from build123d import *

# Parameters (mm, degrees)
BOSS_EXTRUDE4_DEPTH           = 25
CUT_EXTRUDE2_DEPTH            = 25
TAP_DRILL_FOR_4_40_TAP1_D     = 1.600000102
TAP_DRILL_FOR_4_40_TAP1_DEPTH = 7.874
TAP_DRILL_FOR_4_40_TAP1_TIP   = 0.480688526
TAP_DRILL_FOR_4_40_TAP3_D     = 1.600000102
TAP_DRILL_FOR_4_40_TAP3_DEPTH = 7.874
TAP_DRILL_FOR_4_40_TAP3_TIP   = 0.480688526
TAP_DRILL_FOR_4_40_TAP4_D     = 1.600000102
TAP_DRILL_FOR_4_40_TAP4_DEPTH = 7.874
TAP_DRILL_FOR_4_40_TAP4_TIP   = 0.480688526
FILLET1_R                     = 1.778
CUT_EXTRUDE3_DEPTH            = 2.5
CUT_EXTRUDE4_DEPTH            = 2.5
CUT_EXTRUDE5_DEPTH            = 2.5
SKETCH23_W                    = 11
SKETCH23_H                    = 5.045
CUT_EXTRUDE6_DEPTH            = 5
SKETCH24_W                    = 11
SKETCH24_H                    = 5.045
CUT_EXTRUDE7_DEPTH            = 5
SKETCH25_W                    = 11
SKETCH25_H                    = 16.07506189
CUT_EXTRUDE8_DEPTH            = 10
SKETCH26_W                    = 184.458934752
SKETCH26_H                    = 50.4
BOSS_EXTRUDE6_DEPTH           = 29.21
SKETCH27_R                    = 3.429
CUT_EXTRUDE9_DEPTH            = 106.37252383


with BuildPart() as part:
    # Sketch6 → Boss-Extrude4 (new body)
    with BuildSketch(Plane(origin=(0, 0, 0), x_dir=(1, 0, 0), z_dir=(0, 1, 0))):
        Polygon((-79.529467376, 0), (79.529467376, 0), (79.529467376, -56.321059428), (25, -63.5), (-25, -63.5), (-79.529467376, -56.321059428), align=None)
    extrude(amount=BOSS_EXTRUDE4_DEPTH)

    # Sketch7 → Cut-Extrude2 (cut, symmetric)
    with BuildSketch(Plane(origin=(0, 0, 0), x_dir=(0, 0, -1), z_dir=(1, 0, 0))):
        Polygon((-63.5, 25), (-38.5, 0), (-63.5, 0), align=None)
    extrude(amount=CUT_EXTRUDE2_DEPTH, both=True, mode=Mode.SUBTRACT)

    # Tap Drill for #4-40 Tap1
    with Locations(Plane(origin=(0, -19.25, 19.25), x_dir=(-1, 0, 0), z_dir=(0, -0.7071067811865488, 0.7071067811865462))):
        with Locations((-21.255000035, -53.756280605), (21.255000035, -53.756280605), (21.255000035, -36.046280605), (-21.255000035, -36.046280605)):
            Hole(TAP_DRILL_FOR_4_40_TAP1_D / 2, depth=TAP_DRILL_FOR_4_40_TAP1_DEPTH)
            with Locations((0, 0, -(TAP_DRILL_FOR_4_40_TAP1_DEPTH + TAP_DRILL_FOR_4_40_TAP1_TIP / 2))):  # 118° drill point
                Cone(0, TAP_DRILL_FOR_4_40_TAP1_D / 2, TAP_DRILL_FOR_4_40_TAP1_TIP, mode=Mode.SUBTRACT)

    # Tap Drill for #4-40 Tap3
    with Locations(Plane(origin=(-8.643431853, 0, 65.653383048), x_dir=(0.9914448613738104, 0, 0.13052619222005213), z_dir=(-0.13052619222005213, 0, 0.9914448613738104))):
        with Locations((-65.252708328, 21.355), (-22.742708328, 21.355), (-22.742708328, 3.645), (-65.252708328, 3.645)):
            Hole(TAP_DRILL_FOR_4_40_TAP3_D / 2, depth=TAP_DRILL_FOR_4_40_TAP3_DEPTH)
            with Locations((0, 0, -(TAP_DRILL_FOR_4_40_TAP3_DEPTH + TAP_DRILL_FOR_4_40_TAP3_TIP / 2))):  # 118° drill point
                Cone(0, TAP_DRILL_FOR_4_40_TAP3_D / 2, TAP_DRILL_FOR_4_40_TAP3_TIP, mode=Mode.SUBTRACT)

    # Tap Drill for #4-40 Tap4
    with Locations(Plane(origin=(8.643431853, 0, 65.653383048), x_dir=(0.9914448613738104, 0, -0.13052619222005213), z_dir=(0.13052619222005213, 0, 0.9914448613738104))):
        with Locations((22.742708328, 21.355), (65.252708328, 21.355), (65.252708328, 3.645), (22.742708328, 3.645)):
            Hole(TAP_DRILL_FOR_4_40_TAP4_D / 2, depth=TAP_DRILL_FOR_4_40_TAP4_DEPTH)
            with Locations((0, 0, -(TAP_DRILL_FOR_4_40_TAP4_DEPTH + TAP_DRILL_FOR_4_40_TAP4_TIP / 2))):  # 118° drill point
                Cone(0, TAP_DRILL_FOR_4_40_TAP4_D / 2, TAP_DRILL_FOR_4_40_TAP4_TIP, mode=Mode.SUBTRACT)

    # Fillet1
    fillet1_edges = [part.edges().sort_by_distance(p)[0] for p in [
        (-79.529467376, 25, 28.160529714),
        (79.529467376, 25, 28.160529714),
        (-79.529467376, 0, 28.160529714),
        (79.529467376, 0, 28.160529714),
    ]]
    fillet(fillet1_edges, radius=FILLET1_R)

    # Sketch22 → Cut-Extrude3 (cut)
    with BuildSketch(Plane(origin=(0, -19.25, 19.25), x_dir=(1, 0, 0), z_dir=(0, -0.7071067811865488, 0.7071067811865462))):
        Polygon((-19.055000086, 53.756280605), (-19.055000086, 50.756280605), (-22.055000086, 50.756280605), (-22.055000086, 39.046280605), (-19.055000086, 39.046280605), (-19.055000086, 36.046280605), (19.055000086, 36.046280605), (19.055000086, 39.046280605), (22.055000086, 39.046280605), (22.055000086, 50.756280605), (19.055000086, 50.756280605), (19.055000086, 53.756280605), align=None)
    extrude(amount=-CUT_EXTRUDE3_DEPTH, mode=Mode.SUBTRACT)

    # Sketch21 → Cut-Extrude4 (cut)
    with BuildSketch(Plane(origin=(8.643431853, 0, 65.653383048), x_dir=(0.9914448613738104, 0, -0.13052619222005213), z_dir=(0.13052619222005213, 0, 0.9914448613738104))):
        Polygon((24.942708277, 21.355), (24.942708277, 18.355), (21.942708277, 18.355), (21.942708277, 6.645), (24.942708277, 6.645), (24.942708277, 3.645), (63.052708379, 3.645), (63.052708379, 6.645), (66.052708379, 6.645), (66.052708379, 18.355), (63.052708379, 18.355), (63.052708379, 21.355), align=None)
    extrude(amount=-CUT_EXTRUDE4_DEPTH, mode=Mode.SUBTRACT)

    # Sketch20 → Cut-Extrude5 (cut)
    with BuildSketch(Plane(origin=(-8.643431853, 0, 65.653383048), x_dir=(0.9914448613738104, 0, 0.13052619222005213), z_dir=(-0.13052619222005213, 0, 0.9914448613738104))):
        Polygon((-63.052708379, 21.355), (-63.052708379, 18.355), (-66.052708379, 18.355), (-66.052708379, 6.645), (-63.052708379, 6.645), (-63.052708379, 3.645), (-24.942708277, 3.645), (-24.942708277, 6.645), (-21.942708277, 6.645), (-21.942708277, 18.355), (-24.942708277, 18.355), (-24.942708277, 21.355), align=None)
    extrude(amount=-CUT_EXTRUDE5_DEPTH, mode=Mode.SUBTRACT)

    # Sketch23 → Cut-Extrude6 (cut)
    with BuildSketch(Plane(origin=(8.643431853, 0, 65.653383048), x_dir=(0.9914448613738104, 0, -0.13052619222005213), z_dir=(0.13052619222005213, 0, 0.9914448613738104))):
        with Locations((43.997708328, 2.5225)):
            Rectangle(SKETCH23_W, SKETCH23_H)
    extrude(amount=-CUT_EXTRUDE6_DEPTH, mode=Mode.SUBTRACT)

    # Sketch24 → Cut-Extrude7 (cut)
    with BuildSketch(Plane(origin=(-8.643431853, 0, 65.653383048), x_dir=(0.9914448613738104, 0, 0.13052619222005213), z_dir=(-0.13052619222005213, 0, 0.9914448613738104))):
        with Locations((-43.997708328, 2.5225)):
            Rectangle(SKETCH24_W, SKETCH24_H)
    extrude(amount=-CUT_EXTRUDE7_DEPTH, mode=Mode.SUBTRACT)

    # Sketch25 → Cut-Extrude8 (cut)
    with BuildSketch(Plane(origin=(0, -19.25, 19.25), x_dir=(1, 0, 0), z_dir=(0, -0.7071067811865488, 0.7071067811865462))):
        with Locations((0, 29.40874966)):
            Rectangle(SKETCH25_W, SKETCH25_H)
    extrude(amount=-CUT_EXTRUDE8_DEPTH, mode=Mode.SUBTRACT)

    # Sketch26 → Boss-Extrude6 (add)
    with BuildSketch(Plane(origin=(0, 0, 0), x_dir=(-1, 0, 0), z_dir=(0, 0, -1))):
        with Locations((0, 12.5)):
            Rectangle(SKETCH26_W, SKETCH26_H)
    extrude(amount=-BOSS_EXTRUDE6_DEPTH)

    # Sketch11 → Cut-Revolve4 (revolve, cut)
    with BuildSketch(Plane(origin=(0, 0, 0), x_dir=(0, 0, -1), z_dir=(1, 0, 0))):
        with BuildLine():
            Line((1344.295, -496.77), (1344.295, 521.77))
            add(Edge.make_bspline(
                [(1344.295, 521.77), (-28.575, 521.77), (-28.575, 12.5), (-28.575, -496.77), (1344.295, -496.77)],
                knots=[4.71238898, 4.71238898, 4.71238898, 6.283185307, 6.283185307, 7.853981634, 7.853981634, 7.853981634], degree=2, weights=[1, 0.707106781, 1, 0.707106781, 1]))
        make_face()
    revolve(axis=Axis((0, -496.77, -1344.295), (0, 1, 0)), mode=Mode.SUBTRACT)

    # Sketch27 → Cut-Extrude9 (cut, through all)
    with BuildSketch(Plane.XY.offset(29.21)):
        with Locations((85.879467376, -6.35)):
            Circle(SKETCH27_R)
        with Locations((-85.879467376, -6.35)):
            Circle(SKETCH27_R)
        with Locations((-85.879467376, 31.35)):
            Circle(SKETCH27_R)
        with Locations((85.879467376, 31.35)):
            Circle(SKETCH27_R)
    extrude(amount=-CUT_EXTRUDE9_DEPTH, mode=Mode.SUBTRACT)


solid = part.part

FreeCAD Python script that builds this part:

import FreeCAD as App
import Part
import Sketcher
from FreeCAD import Vector
Q = App.Units.Quantity


def edges_at(feature, points):
    """Names of the edges that pass closest to the given points."""
    edges = feature.Shape.Edges
    near = lambda p: min(range(len(edges)), key=lambda i: edges[i].distToShape(Part.Vertex(*p))[0])
    return sorted({f"Edge{near(p) + 1}" for p in points})


def add_polygon(sketch, points):
    """Adds a closed chain of lines whose ends are joined by coincident constraints."""
    first, n = sketch.GeometryCount, len(points)
    for a, b in zip(points, points[1:] + points[:1]):
        sketch.addGeometry(Part.LineSegment(App.Vector(*a, 0), App.Vector(*b, 0)), False)
    for i in range(n):
        sketch.addConstraint(Sketcher.Constraint("Coincident", first + i, 2, first + (i + 1) % n, 1))

doc = App.newDocument("Part")
body = doc.addObject("PartDesign::Body", "Body")

# Sketch on XZ plane
sketch1 = body.newObject("Sketcher::SketchObject", "Sketch")
sketch1.AttachmentSupport = (doc.getObject("XZ_Plane"), [""])
sketch1.MapMode = "FlatFace"
add_polygon(sketch1, [(80, 0), (-80, 0), (-80, 56), (-25, 64), (25, 64), (80, 56)])  # lines 0-5
sketch1.addConstraint(Sketcher.Constraint("Horizontal", 0))
sketch1.addConstraint(Sketcher.Constraint("Vertical", 1))
sketch1.addConstraint(Sketcher.Constraint("Horizontal", 3))
sketch1.addConstraint(Sketcher.Constraint("Vertical", 5))
sketch1.addConstraint(Sketcher.Constraint("Symmetric", 0, 2, 5, 2, -1, 1))
sketch1.addConstraint(Sketcher.Constraint("Horizontal", 1, 2, 4, 2))
sketch1.addConstraint(Sketcher.Constraint("Equal", 2, 4))
sketch1.addConstraint(Sketcher.Constraint("DistanceX", 3, 1, 3, 2, Q("50 mm")))
sketch1.addConstraint(Sketcher.Constraint("Distance", 2, Q("55 mm")))
sketch1.addConstraint(Sketcher.Constraint("Angle", 2, Q("7.5 deg")))
sketch1.addConstraint(Sketcher.Constraint("DistanceY", -1, 1, 2, 2, Q("63.5 mm")))
pad1 = body.newObject("PartDesign::Pad", "Pad")
pad1.Profile = sketch1
pad1.Length = 25
pad1.Reversed = True

# Sketch on YZ plane
sketch2 = body.newObject("Sketcher::SketchObject", "Sketch001")
sketch2.AttachmentSupport = (doc.getObject("YZ_Plane"), [""])
sketch2.MapMode = "FlatFace"
add_polygon(sketch2, [(0, 38), (25, 64), (0, 64)])  # lines 0-2
sketch2.addConstraint(Sketcher.Constraint("Horizontal", 1))
sketch2.addConstraint(Sketcher.Constraint("Vertical", 2))
sketch2.addConstraint(Sketcher.Constraint("PointOnObject", 1, 2, -2))
sketch2.addConstraint(Sketcher.Constraint("Equal", 1, 2))
sketch2.addConstraint(Sketcher.Constraint("DistanceX", 1, 2, 1, 1, Q("25 mm")))
sketch2.addConstraint(Sketcher.Constraint("DistanceY", -1, 1, 0, 2, Q("63.5 mm")))
pocket1 = body.newObject("PartDesign::Pocket", "Pocket")
pocket1.Profile = sketch2
pocket1.Length = 50
pocket1.Midplane = True

# Sketch on an angled plane
sketch3 = body.newObject("Sketcher::SketchObject", "Sketch002")
sketch3.Placement = App.Placement(Vector(0, -19.25, 19.25), App.Rotation(Vector(-1, 0, 0), Vector(0, -0.707106781, -0.707106781), Vector(0, -0.707106781, 0.707106781), "ZXY"))
sketch3.addGeometry(Part.Circle(Vector(-21.3, -53.8, 0), Vector(0, 0, 1), 0.8), False)
sketch3.addGeometry(Part.Circle(Vector(21.3, -53.8, 0), Vector(0, 0, 1), 0.8), False)
sketch3.addGeometry(Part.Circle(Vector(21.3, -36, 0), Vector(0, 0, 1), 0.8), False)
sketch3.addGeometry(Part.Circle(Vector(-21.3, -36, 0), Vector(0, 0, 1), 0.8), False)
sketch3.addConstraint(Sketcher.Constraint("Equal", 0, 1))
sketch3.addConstraint(Sketcher.Constraint("Equal", 1, 2))
sketch3.addConstraint(Sketcher.Constraint("Equal", 2, 3))
sketch3.addConstraint(Sketcher.Constraint("Symmetric", 0, 3, 1, 3, -2))
sketch3.addConstraint(Sketcher.Constraint("Symmetric", 2, 3, 3, 3, -2))
sketch3.addConstraint(Sketcher.Constraint("Vertical", 1, 3, 2, 3))
sketch3.addConstraint(Sketcher.Constraint("Diameter", 0, Q("1.6 mm")))
sketch3.addConstraint(Sketcher.Constraint("DistanceX", 0, 3, 1, 3, Q("42.51 mm")))
sketch3.addConstraint(Sketcher.Constraint("DistanceY", 1, 3, 2, 3, Q("17.71 mm")))
sketch3.addConstraint(Sketcher.Constraint("DistanceY", 0, 3, -1, 1, Q("53.756281 mm")))
doc.recompute()
hole = body.newObject("PartDesign::Hole", "Hole")
hole.Profile = sketch3
hole.ThreadType = "None"
hole.Diameter = 1.6
hole.DepthType = "Dimension"
hole.Depth = 7.874
hole.DrillPoint = "Angled"
hole.DrillPointAngle = 118

# Sketch on an angled plane
sketch4 = body.newObject("Sketcher::SketchObject", "Sketch003")
sketch4.Placement = App.Placement(Vector(-8.643432, 0, 65.653383), App.Rotation(Vector(0.991444861, 0, 0.130526192), Vector(0, 0.999999999, 0), Vector(-0.130526192, 0, 0.991444861), "ZXY"))
sketch4.addGeometry(Part.Circle(Vector(-65.3, 21.4, 0), Vector(0, 0, 1), 0.8), False)
sketch4.addGeometry(Part.Circle(Vector(-22.7, 21.4, 0), Vector(0, 0, 1), 0.8), False)
sketch4.addGeometry(Part.Circle(Vector(-22.7, 3.6, 0), Vector(0, 0, 1), 0.8), False)
sketch4.addGeometry(Part.Circle(Vector(-65.3, 3.6, 0), Vector(0, 0, 1), 0.8), False)
sketch4.addConstraint(Sketcher.Constraint("Equal", 0, 1))
sketch4.addConstraint(Sketcher.Constraint("Equal", 1, 2))
sketch4.addConstraint(Sketcher.Constraint("Equal", 2, 3))
sketch4.addConstraint(Sketcher.Constraint("Horizontal", 0, 3, 1, 3))
sketch4.addConstraint(Sketcher.Constraint("Horizontal", 2, 3, 3, 3))
sketch4.addConstraint(Sketcher.Constraint("Vertical", 1, 3, 2, 3))
sketch4.addConstraint(Sketcher.Constraint("Vertical", 0, 3, 3, 3))
sketch4.addConstraint(Sketcher.Constraint("Diameter", 0, Q("1.6 mm")))
sketch4.addConstraint(Sketcher.Constraint("DistanceX", 0, 3, 1, 3, Q("42.51 mm")))
sketch4.addConstraint(Sketcher.Constraint("DistanceY", 2, 3, 1, 3, Q("17.71 mm")))
sketch4.addConstraint(Sketcher.Constraint("DistanceY", -1, 1, 0, 3, Q("21.355 mm")))
sketch4.addConstraint(Sketcher.Constraint("DistanceX", 0, 3, -1, 1, Q("65.252708 mm")))
doc.recompute()
hole2 = body.newObject("PartDesign::Hole", "Hole001")
hole2.Profile = sketch4
hole2.ThreadType = "None"
hole2.Diameter = 1.6
hole2.DepthType = "Dimension"
hole2.Depth = 7.874
hole2.DrillPoint = "Angled"
hole2.DrillPointAngle = 118

# Sketch on an angled plane
sketch5 = body.newObject("Sketcher::SketchObject", "Sketch004")
sketch5.Placement = App.Placement(Vector(8.643432, 0, 65.653383), App.Rotation(Vector(0.991444861, 0, -0.130526192), Vector(0, 0.999999999, 0), Vector(0.130526192, 0, 0.991444861), "ZXY"))
sketch5.addGeometry(Part.Circle(Vector(22.7, 21.4, 0), Vector(0, 0, 1), 0.8), False)
sketch5.addGeometry(Part.Circle(Vector(65.3, 21.4, 0), Vector(0, 0, 1), 0.8), False)
sketch5.addGeometry(Part.Circle(Vector(65.3, 3.6, 0), Vector(0, 0, 1), 0.8), False)
sketch5.addGeometry(Part.Circle(Vector(22.7, 3.6, 0), Vector(0, 0, 1), 0.8), False)
sketch5.addConstraint(Sketcher.Constraint("Equal", 0, 1))
sketch5.addConstraint(Sketcher.Constraint("Equal", 1, 2))
sketch5.addConstraint(Sketcher.Constraint("Equal", 2, 3))
sketch5.addConstraint(Sketcher.Constraint("Horizontal", 0, 3, 1, 3))
sketch5.addConstraint(Sketcher.Constraint("Horizontal", 2, 3, 3, 3))
sketch5.addConstraint(Sketcher.Constraint("Vertical", 1, 3, 2, 3))
sketch5.addConstraint(Sketcher.Constraint("Vertical", 0, 3, 3, 3))
sketch5.addConstraint(Sketcher.Constraint("Diameter", 0, Q("1.6 mm")))
sketch5.addConstraint(Sketcher.Constraint("DistanceX", 0, 3, 1, 3, Q("42.51 mm")))
sketch5.addConstraint(Sketcher.Constraint("DistanceY", 2, 3, 1, 3, Q("17.71 mm")))
sketch5.addConstraint(Sketcher.Constraint("DistanceY", -1, 1, 0, 3, Q("21.355 mm")))
sketch5.addConstraint(Sketcher.Constraint("DistanceX", -1, 1, 0, 3, Q("22.742708 mm")))
doc.recompute()
hole3 = body.newObject("PartDesign::Hole", "Hole002")
hole3.Profile = sketch5
hole3.ThreadType = "None"
hole3.Diameter = 1.6
hole3.DepthType = "Dimension"
hole3.Depth = 7.874
hole3.DrillPoint = "Angled"
hole3.DrillPointAngle = 118
doc.recompute()

fillet = body.newObject("PartDesign::Fillet", "Fillet")
fillet.Base = (hole3, edges_at(hole3, [
    (-79.529, 25, 28.161),
    (79.529, 25, 28.161),
    (-79.529, 0, 28.161),
    (79.529, 0, 28.161),
]))
fillet.Radius = 1.778

# Sketch on an angled plane
sketch6 = body.newObject("Sketcher::SketchObject", "Sketch005")
sketch6.Placement = App.Placement(Vector(0, -19.25, 19.25), App.Rotation(Vector(1, 0, 0), Vector(0, 0.707106781, 0.707106781), Vector(0, -0.707106781, 0.707106781), "ZXY"))
add_polygon(sketch6, [(-19.1, 53.8), (-19.1, 50.8), (-22.1, 50.8), (-22.1, 39), (-19.1, 39), (-19.1, 36), (19.1, 36), (19.1, 39), (22.1, 39), (22.1, 50.8), (19.1, 50.8), (19.1, 53.8)])  # lines 0-11
sketch6.addConstraint(Sketcher.Constraint("Vertical", 0))
sketch6.addConstraint(Sketcher.Constraint("Horizontal", 1))
sketch6.addConstraint(Sketcher.Constraint("Vertical", 2))
sketch6.addConstraint(Sketcher.Constraint("Horizontal", 3))
sketch6.addConstraint(Sketcher.Constraint("Vertical", 4))
sketch6.addConstraint(Sketcher.Constraint("Horizontal", 5))
sketch6.addConstraint(Sketcher.Constraint("Vertical", 6))
sketch6.addConstraint(Sketcher.Constraint("Horizontal", 7))
sketch6.addConstraint(Sketcher.Constraint("Vertical", 8))
sketch6.addConstraint(Sketcher.Constraint("Horizontal", 9))
sketch6.addConstraint(Sketcher.Constraint("Vertical", 10))
sketch6.addConstraint(Sketcher.Constraint("Horizontal", 11))
sketch6.addConstraint(Sketcher.Constraint("Symmetric", 3, 2, 6, 2, -2))
sketch6.addConstraint(Sketcher.Constraint("Symmetric", 1, 2, 8, 2, -2))
sketch6.addConstraint(Sketcher.Constraint("Vertical", 0, 2, 3, 2))
sketch6.addConstraint(Sketcher.Constraint("Vertical", 6, 2, 9, 2))
sketch6.addConstraint(Sketcher.Constraint("Equal", 9, 0))
sketch6.addConstraint(Sketcher.Constraint("Equal", 0, 4))
sketch6.addConstraint(Sketcher.Constraint("DistanceX", 1, 2, 1, 1, Q("3 mm")))
sketch6.addConstraint(Sketcher.Constraint("DistanceX", 5, 1, 5, 2, Q("38.11 mm")))
sketch6.addConstraint(Sketcher.Constraint("DistanceY", 2, 2, 2, 1, Q("11.71 mm")))
sketch6.addConstraint(Sketcher.Constraint("DistanceY", -1, 1, 0, 2, Q("50.756281 mm")))
pocket2 = body.newObject("PartDesign::Pocket", "Pocket001")
pocket2.Profile = sketch6
pocket2.Length = 2.5

# Sketch on an angled plane
sketch7 = body.newObject("Sketcher::SketchObject", "Sketch006")
sketch7.Placement = App.Placement(Vector(8.643432, 0, 65.653383), App.Rotation(Vector(0.991444861, 0, -0.130526192), Vector(0, 0.999999999, 0), Vector(0.130526192, 0, 0.991444861), "ZXY"))
add_polygon(sketch7, [(24.9, 21.4), (24.9, 18.4), (21.9, 18.4), (21.9, 6.6), (24.9, 6.6), (24.9, 3.6), (63.1, 3.6), (63.1, 6.6), (66.1, 6.6), (66.1, 18.4), (63.1, 18.4), (63.1, 21.4)])  # lines 0-11
sketch7.addConstraint(Sketcher.Constraint("Vertical", 0))
sketch7.addConstraint(Sketcher.Constraint("Horizontal", 1))
sketch7.addConstraint(Sketcher.Constraint("Vertical", 2))
sketch7.addConstraint(Sketcher.Constraint("Horizontal", 3))
sketch7.addConstraint(Sketcher.Constraint("Vertical", 4))
sketch7.addConstraint(Sketcher.Constraint("Horizontal", 5))
sketch7.addConstraint(Sketcher.Constraint("Vertical", 6))
sketch7.addConstraint(Sketcher.Constraint("Horizontal", 7))
sketch7.addConstraint(Sketcher.Constraint("Vertical", 8))
sketch7.addConstraint(Sketcher.Constraint("Horizontal", 9))
sketch7.addConstraint(Sketcher.Constraint("Vertical", 10))
sketch7.addConstraint(Sketcher.Constraint("Horizontal", 11))
sketch7.addConstraint(Sketcher.Constraint("Horizontal", 3, 2, 6, 2))
sketch7.addConstraint(Sketcher.Constraint("Horizontal", 1, 2, 8, 2))
sketch7.addConstraint(Sketcher.Constraint("Vertical", 0, 2, 3, 2))
sketch7.addConstraint(Sketcher.Constraint("Vertical", 6, 2, 9, 2))
sketch7.addConstraint(Sketcher.Constraint("Equal", 3, 7))
sketch7.addConstraint(Sketcher.Constraint("Equal", 9, 0))
sketch7.addConstraint(Sketcher.Constraint("Equal", 0, 4))
sketch7.addConstraint(Sketcher.Constraint("DistanceX", 1, 2, 1, 1, Q("3 mm")))
sketch7.addConstraint(Sketcher.Constraint("DistanceX", 5, 1, 5, 2, Q("38.11 mm")))
sketch7.addConstraint(Sketcher.Constraint("DistanceY", 2, 2, 2, 1, Q("11.71 mm")))
sketch7.addConstraint(Sketcher.Constraint("DistanceY", -1, 1, 0, 2, Q("18.355 mm")))
sketch7.addConstraint(Sketcher.Constraint("DistanceX", -1, 1, 0, 2, Q("24.942708 mm")))
pocket3 = body.newObject("PartDesign::Pocket", "Pocket002")
pocket3.Profile = sketch7
pocket3.Length = 2.5

# Sketch on an angled plane
sketch8 = body.newObject("Sketcher::SketchObject", "Sketch007")
sketch8.Placement = App.Placement(Vector(-8.643432, 0, 65.653383), App.Rotation(Vector(0.991444861, 0, 0.130526192), Vector(0, 0.999999999, 0), Vector(-0.130526192, 0, 0.991444861), "ZXY"))
add_polygon(sketch8, [(-63.1, 21.4), (-63.1, 18.4), (-66.1, 18.4), (-66.1, 6.6), (-63.1, 6.6), (-63.1, 3.6), (-24.9, 3.6), (-24.9, 6.6), (-21.9, 6.6), (-21.9, 18.4), (-24.9, 18.4), (-24.9, 21.4)])  # lines 0-11
sketch8.addConstraint(Sketcher.Constraint("Vertical", 0))
sketch8.addConstraint(Sketcher.Constraint("Horizontal", 1))
sketch8.addConstraint(Sketcher.Constraint("Vertical", 2))
sketch8.addConstraint(Sketcher.Constraint("Horizontal", 3))
sketch8.addConstraint(Sketcher.Constraint("Vertical", 4))
sketch8.addConstraint(Sketcher.Constraint("Horizontal", 5))
sketch8.addConstraint(Sketcher.Constraint("Vertical", 6))
sketch8.addConstraint(Sketcher.Constraint("Horizontal", 7))
sketch8.addConstraint(Sketcher.Constraint("Vertical", 8))
sketch8.addConstraint(Sketcher.Constraint("Horizontal", 9))
sketch8.addConstraint(Sketcher.Constraint("Vertical", 10))
sketch8.addConstraint(Sketcher.Constraint("Horizontal", 11))
sketch8.addConstraint(Sketcher.Constraint("Horizontal", 3, 2, 6, 2))
sketch8.addConstraint(Sketcher.Constraint("Horizontal", 1, 2, 8, 2))
sketch8.addConstraint(Sketcher.Constraint("Vertical", 0, 2, 3, 2))
sketch8.addConstraint(Sketcher.Constraint("Vertical", 6, 2, 9, 2))
sketch8.addConstraint(Sketcher.Constraint("Equal", 3, 7))
sketch8.addConstraint(Sketcher.Constraint("Equal", 9, 0))
sketch8.addConstraint(Sketcher.Constraint("Equal", 0, 4))
sketch8.addConstraint(Sketcher.Constraint("DistanceX", 1, 2, 1, 1, Q("3 mm")))
sketch8.addConstraint(Sketcher.Constraint("DistanceX", 5, 1, 5, 2, Q("38.11 mm")))
sketch8.addConstraint(Sketcher.Constraint("DistanceY", 2, 2, 2, 1, Q("11.71 mm")))
sketch8.addConstraint(Sketcher.Constraint("DistanceY", -1, 1, 0, 2, Q("18.355 mm")))
sketch8.addConstraint(Sketcher.Constraint("DistanceX", 0, 2, -1, 1, Q("63.052708 mm")))
pocket4 = body.newObject("PartDesign::Pocket", "Pocket003")
pocket4.Profile = sketch8
pocket4.Length = 2.5

# Sketch on an angled plane
sketch9 = body.newObject("Sketcher::SketchObject", "Sketch008")
sketch9.Placement = App.Placement(Vector(8.643432, 0, 65.653383), App.Rotation(Vector(0.991444861, 0, -0.130526192), Vector(0, 0.999999999, 0), Vector(0.130526192, 0, 0.991444861), "ZXY"))
add_polygon(sketch9, [(38, 5), (38, 0), (49, 0), (49, 5)])  # lines 0-3
sketch9.addConstraint(Sketcher.Constraint("Vertical", 0))
sketch9.addConstraint(Sketcher.Constraint("Horizontal", 1))
sketch9.addConstraint(Sketcher.Constraint("Vertical", 2))
sketch9.addConstraint(Sketcher.Constraint("Horizontal", 3))
sketch9.addConstraint(Sketcher.Constraint("PointOnObject", 0, 2, -1))
sketch9.addConstraint(Sketcher.Constraint("DistanceX", 1, 1, 1, 2, Q("11 mm")))
sketch9.addConstraint(Sketcher.Constraint("DistanceY", 0, 2, 0, 1, Q("5.045 mm")))
sketch9.addConstraint(Sketcher.Constraint("DistanceX", -1, 1, 0, 2, Q("38.497708 mm")))
pocket5 = body.newObject("PartDesign::Pocket", "Pocket004")
pocket5.Profile = sketch9
pocket5.Length = 5

# Sketch on an angled plane
sketch10 = body.newObject("Sketcher::SketchObject", "Sketch009")
sketch10.Placement = App.Placement(Vector(-8.643432, 0, 65.653383), App.Rotation(Vector(0.991444861, 0, 0.130526192), Vector(0, 0.999999999, 0), Vector(-0.130526192, 0, 0.991444861), "ZXY"))
add_polygon(sketch10, [(-49, 5), (-49, 0), (-38, 0), (-38, 5)])  # lines 0-3
sketch10.addConstraint(Sketcher.Constraint("Vertical", 0))
sketch10.addConstraint(Sketcher.Constraint("Horizontal", 1))
sketch10.addConstraint(Sketcher.Constraint("Vertical", 2))
sketch10.addConstraint(Sketcher.Constraint("Horizontal", 3))
sketch10.addConstraint(Sketcher.Constraint("PointOnObject", 0, 2, -1))
sketch10.addConstraint(Sketcher.Constraint("DistanceX", 1, 1, 1, 2, Q("11 mm")))
sketch10.addConstraint(Sketcher.Constraint("DistanceY", 0, 2, 0, 1, Q("5.045 mm")))
sketch10.addConstraint(Sketcher.Constraint("DistanceX", 0, 2, -1, 1, Q("49.497708 mm")))
pocket6 = body.newObject("PartDesign::Pocket", "Pocket005")
pocket6.Profile = sketch10
pocket6.Length = 5

# Sketch on an angled plane
sketch11 = body.newObject("Sketcher::SketchObject", "Sketch010")
sketch11.Placement = App.Placement(Vector(0, -19.25, 19.25), App.Rotation(Vector(1, 0, 0), Vector(0, 0.707106781, 0.707106781), Vector(0, -0.707106781, 0.707106781), "ZXY"))
add_polygon(sketch11, [(-6, 37), (-6, 21), (6, 21), (6, 37)])  # lines 0-3
sketch11.addConstraint(Sketcher.Constraint("Vertical", 0))
sketch11.addConstraint(Sketcher.Constraint("Horizontal", 1))
sketch11.addConstraint(Sketcher.Constraint("Vertical", 2))
sketch11.addConstraint(Sketcher.Constraint("Horizontal", 3))
sketch11.addConstraint(Sketcher.Constraint("DistanceX", 1, 1, 1, 2, Q("11 mm")))
sketch11.addConstraint(Sketcher.Constraint("DistanceX", 0, 2, -1, 1, Q("5.5 mm")))
sketch11.addConstraint(Sketcher.Constraint("DistanceY", 0, 2, 0, 1, Q("16.075062 mm")))
sketch11.addConstraint(Sketcher.Constraint("DistanceY", -1, 1, 0, 2, Q("21.371219 mm")))
pocket7 = body.newObject("PartDesign::Pocket", "Pocket006")
pocket7.Profile = sketch11
pocket7.Length = 10

# Sketch on XY plane
sketch12 = body.newObject("Sketcher::SketchObject", "Sketch011")
sketch12.AttachmentSupport = (doc.getObject("XY_Plane"), [""])
sketch12.MapMode = "FlatFace"
add_polygon(sketch12, [(92, 38), (92, -13), (-92, -13), (-92, 38)])  # lines 0-3
sketch12.addConstraint(Sketcher.Constraint("Vertical", 0))
sketch12.addConstraint(Sketcher.Constraint("Horizontal", 1))
sketch12.addConstraint(Sketcher.Constraint("Vertical", 2))
sketch12.addConstraint(Sketcher.Constraint("Horizontal", 3))
sketch12.addConstraint(Sketcher.Constraint("DistanceY", 0, 2, 0, 1, Q("50.4 mm")))
sketch12.addConstraint(Sketcher.Constraint("DistanceY", 0, 2, -1, 1, Q("12.7 mm")))
sketch12.addConstraint(Sketcher.Constraint("DistanceX", 1, 2, 1, 1, Q("184.458935 mm")))
sketch12.addConstraint(Sketcher.Constraint("DistanceX", -1, 1, 0, 2, Q("92.229467 mm")))
pad2 = body.newObject("PartDesign::Pad", "Pad001")
pad2.Profile = sketch12
pad2.Length = 29.21

# Sketch on YZ plane
sketch13 = body.newObject("Sketcher::SketchObject", "Sketch012")
sketch13.AttachmentSupport = (doc.getObject("YZ_Plane"), [""])
sketch13.MapMode = "FlatFace"
sketch13.addGeometry(Part.LineSegment(Vector(-496.77, -1344.295, 0), Vector(521.77, -1344.295, 0)), False)
sketch13.addGeometry(Part.BSplineCurve([Vector(521.77, -1344.295, 0), Vector(521.77, 28.575, 0), Vector(12.5, 28.575, 0), Vector(-496.77, 28.575, 0), Vector(-496.77, -1344.295, 0)], [3, 2, 3], [4.71238898, 6.283185307, 7.853981634], False, 2, [1, 0.707106781, 1, 0.707106781, 1], False), False)
sketch13.addGeometry(Part.LineSegment(Vector(-496.77, -1344.295, 0), Vector(521.77, -1344.295, 0)), True)  # axis
sketch13.addConstraint(Sketcher.Constraint("Block", 1))
sketch13.addConstraint(Sketcher.Constraint("Coincident", 0, 1, 1, 2))
sketch13.addConstraint(Sketcher.Constraint("Coincident", 1, 1, 0, 2))
sketch13.addConstraint(Sketcher.Constraint("Horizontal", 2))
sketch13.addConstraint(Sketcher.Constraint("Coincident", 2, 1, 0, 1))
sketch13.addConstraint(Sketcher.Constraint("DistanceX", 2, 1, 2, 2, Q("1018.54 mm")))
groove = body.newObject("PartDesign::Groove", "Groove")
groove.Profile = sketch13
groove.ReferenceAxis = (sketch13, ["Axis0"])
groove.Angle = 360

# Sketch on XY plane
sketch14 = body.newObject("Sketcher::SketchObject", "Sketch013")
sketch14.AttachmentSupport = (doc.getObject("XY_Plane"), [""])
sketch14.MapMode = "FlatFace"
sketch14.AttachmentOffset = App.Placement(Vector(0, 0, 29.21), App.Rotation())
sketch14.addGeometry(Part.Circle(Vector(85.9, -6.3, 0), Vector(0, 0, 1), 3.4), False)
sketch14.addGeometry(Part.Circle(Vector(-85.9, -6.3, 0), Vector(0, 0, 1), 3.4), False)
sketch14.addGeometry(Part.Circle(Vector(-85.9, 31.4, 0), Vector(0, 0, 1), 3.4), False)
sketch14.addGeometry(Part.Circle(Vector(85.9, 31.4, 0), Vector(0, 0, 1), 3.4), False)
sketch14.addConstraint(Sketcher.Constraint("Equal", 0, 1))
sketch14.addConstraint(Sketcher.Constraint("Equal", 1, 2))
sketch14.addConstraint(Sketcher.Constraint("Equal", 2, 3))
sketch14.addConstraint(Sketcher.Constraint("Symmetric", 0, 3, 1, 3, -2))
sketch14.addConstraint(Sketcher.Constraint("Symmetric", 2, 3, 3, 3, -2))
sketch14.addConstraint(Sketcher.Constraint("Vertical", 1, 3, 2, 3))
sketch14.addConstraint(Sketcher.Constraint("Diameter", 0, Q("6.858 mm")))
sketch14.addConstraint(Sketcher.Constraint("DistanceY", 1, 3, 2, 3, Q("37.7 mm")))
sketch14.addConstraint(Sketcher.Constraint("DistanceY", 0, 3, -1, 1, Q("6.35 mm")))
sketch14.addConstraint(Sketcher.Constraint("DistanceX", -1, 1, 0, 3, Q("85.879467 mm")))
pocket8 = body.newObject("PartDesign::Pocket", "Pocket007")
pocket8.Profile = sketch14
pocket8.Type = "ThroughAll"

doc.recompute()
